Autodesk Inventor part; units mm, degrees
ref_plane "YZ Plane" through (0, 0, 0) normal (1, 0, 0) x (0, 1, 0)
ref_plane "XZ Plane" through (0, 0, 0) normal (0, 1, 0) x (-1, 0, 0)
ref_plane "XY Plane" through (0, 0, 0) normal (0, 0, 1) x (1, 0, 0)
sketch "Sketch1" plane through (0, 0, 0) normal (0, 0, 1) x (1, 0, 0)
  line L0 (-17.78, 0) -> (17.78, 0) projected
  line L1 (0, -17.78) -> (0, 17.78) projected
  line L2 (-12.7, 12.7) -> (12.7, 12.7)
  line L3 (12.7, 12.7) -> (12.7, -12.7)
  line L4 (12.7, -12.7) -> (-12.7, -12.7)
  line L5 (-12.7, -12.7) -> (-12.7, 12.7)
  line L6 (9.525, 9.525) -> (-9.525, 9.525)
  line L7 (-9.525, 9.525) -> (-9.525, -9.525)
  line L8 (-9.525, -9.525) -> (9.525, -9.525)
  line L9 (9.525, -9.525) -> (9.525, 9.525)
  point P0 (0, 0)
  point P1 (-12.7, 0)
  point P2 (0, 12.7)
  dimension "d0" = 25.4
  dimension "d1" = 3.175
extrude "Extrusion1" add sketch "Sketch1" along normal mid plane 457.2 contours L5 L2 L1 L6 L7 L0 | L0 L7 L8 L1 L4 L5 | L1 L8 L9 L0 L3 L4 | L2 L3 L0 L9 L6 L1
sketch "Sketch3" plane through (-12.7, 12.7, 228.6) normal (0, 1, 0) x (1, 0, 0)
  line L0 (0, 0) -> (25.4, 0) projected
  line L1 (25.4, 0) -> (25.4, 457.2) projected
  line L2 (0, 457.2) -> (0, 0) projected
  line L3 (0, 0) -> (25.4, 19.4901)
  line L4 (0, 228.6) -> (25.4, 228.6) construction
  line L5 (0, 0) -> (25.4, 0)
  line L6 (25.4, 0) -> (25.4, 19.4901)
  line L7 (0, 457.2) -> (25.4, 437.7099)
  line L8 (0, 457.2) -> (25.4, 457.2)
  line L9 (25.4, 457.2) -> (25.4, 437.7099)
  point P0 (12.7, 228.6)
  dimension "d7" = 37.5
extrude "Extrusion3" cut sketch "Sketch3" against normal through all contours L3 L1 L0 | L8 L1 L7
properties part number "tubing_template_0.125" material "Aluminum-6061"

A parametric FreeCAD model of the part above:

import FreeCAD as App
import Part
import Sketcher
Q = App.Units.Quantity

doc = App.newDocument("Part")
body = doc.addObject("PartDesign::Body", "Body")

# Sketch on XY plane
sketch1 = body.newObject("Sketcher::SketchObject", "Sketch")
sketch1.AttachmentSupport = (doc.getObject("XY_Plane"), [""])
sketch1.MapMode = "FlatFace"
sketch1.addGeometry(Part.LineSegment(App.Vector(-13, 13, 0), App.Vector(-13, -13, 0)), False)
sketch1.addGeometry(Part.LineSegment(App.Vector(-13, -13, 0), App.Vector(13, -13, 0)), False)
sketch1.addGeometry(Part.LineSegment(App.Vector(13, -13, 0), App.Vector(13, 13, 0)), False)
sketch1.addGeometry(Part.LineSegment(App.Vector(13, 13, 0), App.Vector(-13, 13, 0)), False)
sketch1.addGeometry(Part.LineSegment(App.Vector(-10, 10, 0), App.Vector(10, 10, 0)), False)
sketch1.addGeometry(Part.LineSegment(App.Vector(10, 10, 0), App.Vector(10, -10, 0)), False)
sketch1.addGeometry(Part.LineSegment(App.Vector(10, -10, 0), App.Vector(-10, -10, 0)), False)
sketch1.addGeometry(Part.LineSegment(App.Vector(-10, -10, 0), App.Vector(-10, 10, 0)), False)
sketch1.addConstraint(Sketcher.Constraint("Coincident", 0, 2, 1, 1))
sketch1.addConstraint(Sketcher.Constraint("Coincident", 1, 2, 2, 1))
sketch1.addConstraint(Sketcher.Constraint("Coincident", 2, 2, 3, 1))
sketch1.addConstraint(Sketcher.Constraint("Coincident", 3, 2, 0, 1))
sketch1.addConstraint(Sketcher.Constraint("Coincident", 4, 2, 5, 1))
sketch1.addConstraint(Sketcher.Constraint("Coincident", 5, 2, 6, 1))
sketch1.addConstraint(Sketcher.Constraint("Coincident", 6, 2, 7, 1))
sketch1.addConstraint(Sketcher.Constraint("Coincident", 7, 2, 4, 1))
sketch1.addConstraint(Sketcher.Constraint("Vertical", 0))
sketch1.addConstraint(Sketcher.Constraint("Horizontal", 1))
sketch1.addConstraint(Sketcher.Constraint("Vertical", 2))
sketch1.addConstraint(Sketcher.Constraint("Horizontal", 3))
sketch1.addConstraint(Sketcher.Constraint("Horizontal", 4))
sketch1.addConstraint(Sketcher.Constraint("Vertical", 5))
sketch1.addConstraint(Sketcher.Constraint("Horizontal", 6))
sketch1.addConstraint(Sketcher.Constraint("Vertical", 7))
sketch1.addConstraint(Sketcher.Constraint("Symmetric", 0, 2, 2, 2, -1, 1))
sketch1.addConstraint(Sketcher.Constraint("Symmetric", 4, 2, 6, 2, -1, 1))
sketch1.addConstraint(Sketcher.Constraint("Equal", 3, 0))
sketch1.addConstraint(Sketcher.Constraint("Equal", 6, 5))
sketch1.addConstraint(Sketcher.Constraint("DistanceX", 1, 1, 1, 2, Q("1 in")))
sketch1.addConstraint(Sketcher.Constraint("DistanceX", 4, 2, 2, 2, Q("0.125 in")))
pad1 = body.newObject("PartDesign::Pad", "Pad")
pad1.Profile = sketch1
pad1.Length = Q("18 in")
pad1.Midplane = True

# Sketch on XZ plane
sketch2 = body.newObject("Sketcher::SketchObject", "Sketch001")
sketch2.AttachmentSupport = (doc.getObject("XZ_Plane"), [""])
sketch2.MapMode = "FlatFace"
sketch2.AttachmentOffset = App.Placement(App.Vector(0, 0, -0.5 * 25.4), App.Rotation())
sketch2.addGeometry(Part.LineSegment(App.Vector(13, 209, 0), App.Vector(-13, 229, 0)), False)
sketch2.addGeometry(Part.LineSegment(App.Vector(-13, 229, 0), App.Vector(13, 229, 0)), False)
sketch2.addGeometry(Part.LineSegment(App.Vector(13, 229, 0), App.Vector(13, 209, 0)), False)
sketch2.addGeometry(Part.LineSegment(App.Vector(13, -229, 0), App.Vector(-13, -229, 0)), False)
sketch2.addGeometry(Part.LineSegment(App.Vector(-13, -229, 0), App.Vector(13, -209, 0)), False)
sketch2.addGeometry(Part.LineSegment(App.Vector(13, -209, 0), App.Vector(13, -229, 0)), False)
sketch2.addConstraint(Sketcher.Constraint("Coincident", 0, 2, 1, 1))
sketch2.addConstraint(Sketcher.Constraint("Coincident", 1, 2, 2, 1))
sketch2.addConstraint(Sketcher.Constraint("Coincident", 2, 2, 0, 1))
sketch2.addConstraint(Sketcher.Constraint("Coincident", 3, 2, 4, 1))
sketch2.addConstraint(Sketcher.Constraint("Coincident", 4, 2, 5, 1))
sketch2.addConstraint(Sketcher.Constraint("Coincident", 5, 2, 3, 1))
sketch2.addConstraint(Sketcher.Constraint("Horizontal", 1))
sketch2.addConstraint(Sketcher.Constraint("Vertical", 2))
sketch2.addConstraint(Sketcher.Constraint("Horizontal", 3))
sketch2.addConstraint(Sketcher.Constraint("Vertical", 5))
sketch2.addConstraint(Sketcher.Constraint("Symmetric", 1, 2, 3, 2, -1, 1))
sketch2.addConstraint(Sketcher.Constraint("Symmetric", 2, 2, 4, 2, -1))
sketch2.addConstraint(Sketcher.Constraint("Vertical", 0, 2, 3, 2))
sketch2.addConstraint(Sketcher.Constraint("Angle", 4, Q("37.5 deg")))
sketch2.addConstraint(Sketcher.Constraint("DistanceX", 1, 1, 1, 2, Q("1 in")))
sketch2.addConstraint(Sketcher.Constraint("DistanceY", -1, 1, 0, 2, Q("9 in")))
pocket1 = body.newObject("PartDesign::Pocket", "Pocket")
pocket1.Profile = sketch2
pocket1.Type = "ThroughAll"
pocket1.Reversed = True

doc.recompute()
